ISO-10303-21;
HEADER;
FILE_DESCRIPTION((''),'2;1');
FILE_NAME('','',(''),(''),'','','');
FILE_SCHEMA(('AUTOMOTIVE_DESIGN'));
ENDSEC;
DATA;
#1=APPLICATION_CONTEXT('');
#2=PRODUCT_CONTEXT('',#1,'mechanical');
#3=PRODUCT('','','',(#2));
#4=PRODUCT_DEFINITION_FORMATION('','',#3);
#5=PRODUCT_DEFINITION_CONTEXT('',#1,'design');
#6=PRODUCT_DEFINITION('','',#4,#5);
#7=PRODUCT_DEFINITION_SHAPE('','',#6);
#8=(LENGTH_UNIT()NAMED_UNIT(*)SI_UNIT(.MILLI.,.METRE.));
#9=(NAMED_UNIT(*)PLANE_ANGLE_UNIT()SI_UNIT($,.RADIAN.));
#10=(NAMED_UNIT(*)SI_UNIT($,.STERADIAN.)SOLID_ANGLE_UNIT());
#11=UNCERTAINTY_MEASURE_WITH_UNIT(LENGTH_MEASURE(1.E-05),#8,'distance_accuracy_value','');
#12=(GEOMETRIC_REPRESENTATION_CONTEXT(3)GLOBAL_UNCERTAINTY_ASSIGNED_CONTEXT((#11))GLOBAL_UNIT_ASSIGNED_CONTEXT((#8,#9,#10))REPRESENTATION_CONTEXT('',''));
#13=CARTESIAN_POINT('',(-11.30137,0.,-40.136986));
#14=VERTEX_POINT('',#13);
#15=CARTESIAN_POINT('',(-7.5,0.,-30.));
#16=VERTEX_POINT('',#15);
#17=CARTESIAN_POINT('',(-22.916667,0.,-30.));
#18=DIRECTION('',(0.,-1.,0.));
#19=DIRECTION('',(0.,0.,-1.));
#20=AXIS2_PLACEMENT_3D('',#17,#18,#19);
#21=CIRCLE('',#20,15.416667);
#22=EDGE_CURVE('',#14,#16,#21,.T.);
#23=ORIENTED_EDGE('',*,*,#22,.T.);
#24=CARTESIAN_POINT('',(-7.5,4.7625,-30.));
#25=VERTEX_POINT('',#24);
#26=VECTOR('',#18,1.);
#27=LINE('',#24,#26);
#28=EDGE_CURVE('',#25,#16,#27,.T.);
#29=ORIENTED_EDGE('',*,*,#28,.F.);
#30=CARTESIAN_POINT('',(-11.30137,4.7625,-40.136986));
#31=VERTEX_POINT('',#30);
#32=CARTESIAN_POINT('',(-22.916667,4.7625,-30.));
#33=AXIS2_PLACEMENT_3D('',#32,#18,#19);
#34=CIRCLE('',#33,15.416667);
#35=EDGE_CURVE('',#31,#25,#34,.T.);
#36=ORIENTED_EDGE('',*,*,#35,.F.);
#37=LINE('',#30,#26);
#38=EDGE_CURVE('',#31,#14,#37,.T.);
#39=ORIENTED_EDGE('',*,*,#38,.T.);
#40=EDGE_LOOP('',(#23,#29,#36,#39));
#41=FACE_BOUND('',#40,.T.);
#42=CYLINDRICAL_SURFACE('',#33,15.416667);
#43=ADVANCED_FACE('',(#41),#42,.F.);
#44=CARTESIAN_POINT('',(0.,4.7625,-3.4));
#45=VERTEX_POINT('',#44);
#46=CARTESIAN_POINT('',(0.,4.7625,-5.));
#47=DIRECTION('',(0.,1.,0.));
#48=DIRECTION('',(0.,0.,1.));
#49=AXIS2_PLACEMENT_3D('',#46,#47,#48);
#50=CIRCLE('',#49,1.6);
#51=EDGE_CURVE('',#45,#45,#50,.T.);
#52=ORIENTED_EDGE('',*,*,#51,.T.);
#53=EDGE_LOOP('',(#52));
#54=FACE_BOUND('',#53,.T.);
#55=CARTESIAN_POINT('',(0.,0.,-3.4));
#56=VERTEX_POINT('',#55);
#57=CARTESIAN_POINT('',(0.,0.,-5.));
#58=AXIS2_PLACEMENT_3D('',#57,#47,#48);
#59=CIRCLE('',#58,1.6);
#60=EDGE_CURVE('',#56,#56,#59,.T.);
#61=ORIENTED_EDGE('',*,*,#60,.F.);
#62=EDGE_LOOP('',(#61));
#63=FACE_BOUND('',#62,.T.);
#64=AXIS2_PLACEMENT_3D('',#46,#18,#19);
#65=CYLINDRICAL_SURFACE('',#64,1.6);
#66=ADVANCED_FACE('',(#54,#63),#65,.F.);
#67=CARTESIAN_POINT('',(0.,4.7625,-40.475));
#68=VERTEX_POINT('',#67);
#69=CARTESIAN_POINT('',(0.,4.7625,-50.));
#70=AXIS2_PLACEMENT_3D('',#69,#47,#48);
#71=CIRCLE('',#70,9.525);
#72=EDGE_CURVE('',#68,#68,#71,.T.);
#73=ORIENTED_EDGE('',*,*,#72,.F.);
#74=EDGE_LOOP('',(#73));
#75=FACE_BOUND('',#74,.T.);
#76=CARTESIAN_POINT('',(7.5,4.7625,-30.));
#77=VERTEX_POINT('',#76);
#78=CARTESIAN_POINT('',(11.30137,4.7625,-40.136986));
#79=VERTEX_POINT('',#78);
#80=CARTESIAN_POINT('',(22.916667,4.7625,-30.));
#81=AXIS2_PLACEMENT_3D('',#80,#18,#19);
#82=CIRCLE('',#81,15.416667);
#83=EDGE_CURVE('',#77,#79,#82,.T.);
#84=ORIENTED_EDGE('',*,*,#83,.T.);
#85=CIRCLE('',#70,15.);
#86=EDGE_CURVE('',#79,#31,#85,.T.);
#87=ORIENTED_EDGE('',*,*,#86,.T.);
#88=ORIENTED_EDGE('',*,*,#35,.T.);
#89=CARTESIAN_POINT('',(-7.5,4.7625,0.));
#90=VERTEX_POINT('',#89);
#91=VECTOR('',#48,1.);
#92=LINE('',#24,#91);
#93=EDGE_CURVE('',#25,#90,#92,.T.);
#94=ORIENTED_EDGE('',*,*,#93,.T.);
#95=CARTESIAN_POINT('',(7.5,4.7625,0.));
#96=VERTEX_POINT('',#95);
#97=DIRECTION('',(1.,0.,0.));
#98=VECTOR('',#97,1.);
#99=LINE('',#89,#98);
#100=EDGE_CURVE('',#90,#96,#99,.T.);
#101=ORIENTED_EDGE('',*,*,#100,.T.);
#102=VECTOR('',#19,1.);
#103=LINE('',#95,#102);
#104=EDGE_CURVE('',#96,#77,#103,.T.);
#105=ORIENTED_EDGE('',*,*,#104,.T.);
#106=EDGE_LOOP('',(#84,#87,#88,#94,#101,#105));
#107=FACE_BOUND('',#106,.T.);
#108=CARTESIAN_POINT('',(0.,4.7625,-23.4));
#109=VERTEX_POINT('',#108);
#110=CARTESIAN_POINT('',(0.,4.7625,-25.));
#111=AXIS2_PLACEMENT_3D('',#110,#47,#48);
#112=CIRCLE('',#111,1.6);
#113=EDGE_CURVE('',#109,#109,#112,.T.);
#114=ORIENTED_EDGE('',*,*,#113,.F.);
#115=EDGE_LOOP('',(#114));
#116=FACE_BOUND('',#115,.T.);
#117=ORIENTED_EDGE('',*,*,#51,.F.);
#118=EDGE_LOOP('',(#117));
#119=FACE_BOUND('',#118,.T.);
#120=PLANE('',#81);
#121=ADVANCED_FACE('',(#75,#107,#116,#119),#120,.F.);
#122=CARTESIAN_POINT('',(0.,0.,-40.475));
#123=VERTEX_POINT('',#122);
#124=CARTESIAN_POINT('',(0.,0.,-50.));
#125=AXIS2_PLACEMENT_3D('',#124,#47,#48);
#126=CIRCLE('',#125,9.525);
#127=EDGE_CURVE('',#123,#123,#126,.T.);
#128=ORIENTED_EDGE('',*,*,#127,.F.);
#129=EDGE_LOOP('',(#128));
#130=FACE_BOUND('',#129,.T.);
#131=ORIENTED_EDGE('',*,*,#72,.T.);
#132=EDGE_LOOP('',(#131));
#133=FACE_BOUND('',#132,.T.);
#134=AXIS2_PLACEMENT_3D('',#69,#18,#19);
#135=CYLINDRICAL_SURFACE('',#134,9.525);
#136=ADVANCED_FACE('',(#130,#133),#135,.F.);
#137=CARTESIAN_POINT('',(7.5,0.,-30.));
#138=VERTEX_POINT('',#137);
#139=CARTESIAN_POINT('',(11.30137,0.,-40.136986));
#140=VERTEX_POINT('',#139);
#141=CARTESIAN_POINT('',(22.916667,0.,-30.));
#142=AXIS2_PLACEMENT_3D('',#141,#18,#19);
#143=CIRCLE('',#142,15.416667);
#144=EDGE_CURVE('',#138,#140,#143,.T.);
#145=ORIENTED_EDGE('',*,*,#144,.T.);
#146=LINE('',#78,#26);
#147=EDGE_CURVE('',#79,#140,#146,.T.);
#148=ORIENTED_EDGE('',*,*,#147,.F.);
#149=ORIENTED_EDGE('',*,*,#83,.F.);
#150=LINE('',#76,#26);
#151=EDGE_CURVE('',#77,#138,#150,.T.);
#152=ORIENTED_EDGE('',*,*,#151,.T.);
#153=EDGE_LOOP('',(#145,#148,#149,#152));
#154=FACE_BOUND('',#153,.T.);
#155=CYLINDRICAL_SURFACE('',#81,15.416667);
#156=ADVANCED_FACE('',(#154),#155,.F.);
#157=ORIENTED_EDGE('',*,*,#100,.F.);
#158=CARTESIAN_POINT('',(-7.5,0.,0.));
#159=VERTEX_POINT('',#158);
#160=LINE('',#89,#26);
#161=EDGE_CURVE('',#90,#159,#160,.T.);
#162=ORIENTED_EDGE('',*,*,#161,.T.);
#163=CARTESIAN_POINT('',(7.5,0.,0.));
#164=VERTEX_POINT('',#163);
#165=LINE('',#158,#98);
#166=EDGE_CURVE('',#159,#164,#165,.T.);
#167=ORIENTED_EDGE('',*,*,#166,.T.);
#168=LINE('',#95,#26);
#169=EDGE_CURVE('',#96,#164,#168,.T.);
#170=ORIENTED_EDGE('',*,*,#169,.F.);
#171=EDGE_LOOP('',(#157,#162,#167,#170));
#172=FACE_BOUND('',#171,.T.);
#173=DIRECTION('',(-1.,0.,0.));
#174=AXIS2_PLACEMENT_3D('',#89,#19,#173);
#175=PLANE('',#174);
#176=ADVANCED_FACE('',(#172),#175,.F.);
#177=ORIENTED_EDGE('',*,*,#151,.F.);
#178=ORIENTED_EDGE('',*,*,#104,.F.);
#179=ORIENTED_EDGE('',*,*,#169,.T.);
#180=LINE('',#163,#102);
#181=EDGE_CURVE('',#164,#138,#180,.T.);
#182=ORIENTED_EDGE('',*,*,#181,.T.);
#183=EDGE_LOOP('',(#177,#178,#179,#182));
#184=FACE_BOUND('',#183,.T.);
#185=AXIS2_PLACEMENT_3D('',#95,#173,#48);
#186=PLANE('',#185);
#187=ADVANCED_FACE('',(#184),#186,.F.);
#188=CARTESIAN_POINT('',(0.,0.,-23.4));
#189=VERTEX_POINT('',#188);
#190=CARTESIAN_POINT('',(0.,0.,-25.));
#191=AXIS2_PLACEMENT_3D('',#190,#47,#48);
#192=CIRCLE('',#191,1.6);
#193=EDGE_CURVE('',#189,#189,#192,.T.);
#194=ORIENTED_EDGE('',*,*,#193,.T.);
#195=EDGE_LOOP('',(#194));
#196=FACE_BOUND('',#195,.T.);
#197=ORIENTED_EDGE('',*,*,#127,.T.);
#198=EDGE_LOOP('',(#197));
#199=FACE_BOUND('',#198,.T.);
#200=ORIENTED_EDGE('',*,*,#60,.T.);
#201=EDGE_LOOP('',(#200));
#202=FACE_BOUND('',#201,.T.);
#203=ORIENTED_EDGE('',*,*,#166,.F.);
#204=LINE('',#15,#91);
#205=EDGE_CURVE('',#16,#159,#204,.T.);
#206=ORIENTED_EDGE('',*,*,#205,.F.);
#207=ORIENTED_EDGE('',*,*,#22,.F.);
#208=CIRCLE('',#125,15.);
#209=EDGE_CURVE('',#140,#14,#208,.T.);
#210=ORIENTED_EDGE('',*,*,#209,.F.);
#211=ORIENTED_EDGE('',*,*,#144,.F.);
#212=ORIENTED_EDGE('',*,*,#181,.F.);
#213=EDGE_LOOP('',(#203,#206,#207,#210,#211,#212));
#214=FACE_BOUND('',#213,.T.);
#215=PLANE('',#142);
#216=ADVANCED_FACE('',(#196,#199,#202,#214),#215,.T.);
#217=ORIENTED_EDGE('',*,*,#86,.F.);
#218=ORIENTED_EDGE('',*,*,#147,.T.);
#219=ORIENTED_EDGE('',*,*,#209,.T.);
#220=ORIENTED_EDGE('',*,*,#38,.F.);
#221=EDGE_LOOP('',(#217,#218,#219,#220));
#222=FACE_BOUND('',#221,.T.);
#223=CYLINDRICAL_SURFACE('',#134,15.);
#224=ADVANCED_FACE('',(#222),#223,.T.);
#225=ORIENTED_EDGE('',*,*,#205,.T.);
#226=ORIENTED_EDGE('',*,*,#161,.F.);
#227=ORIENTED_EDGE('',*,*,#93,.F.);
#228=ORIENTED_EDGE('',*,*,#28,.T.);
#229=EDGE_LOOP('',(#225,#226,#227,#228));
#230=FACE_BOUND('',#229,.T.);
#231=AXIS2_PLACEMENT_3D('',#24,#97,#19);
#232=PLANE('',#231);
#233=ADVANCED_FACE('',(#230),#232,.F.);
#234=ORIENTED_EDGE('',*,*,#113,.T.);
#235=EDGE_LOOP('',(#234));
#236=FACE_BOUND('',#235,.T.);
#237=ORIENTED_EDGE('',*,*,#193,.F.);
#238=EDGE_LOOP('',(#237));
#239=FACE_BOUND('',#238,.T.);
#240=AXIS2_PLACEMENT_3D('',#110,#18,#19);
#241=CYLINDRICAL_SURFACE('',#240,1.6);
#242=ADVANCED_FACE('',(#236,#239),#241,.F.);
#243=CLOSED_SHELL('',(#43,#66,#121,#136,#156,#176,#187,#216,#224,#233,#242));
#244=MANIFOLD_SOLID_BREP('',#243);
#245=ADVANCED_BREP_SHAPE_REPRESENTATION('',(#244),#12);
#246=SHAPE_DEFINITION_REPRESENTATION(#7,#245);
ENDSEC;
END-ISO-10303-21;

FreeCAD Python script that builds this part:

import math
import FreeCAD as App
import Part
import Sketcher

doc = App.newDocument("Part")
params = doc.addObject("Spreadsheet::Sheet", "Params")
for row, (alias, value) in enumerate([
    ("sketch1_radius", "15 mm"),
    ("sketch1_diameter", "3.2 mm"),
    ("sketch1_diameter2", "19.05 mm"),
    ("sketch1_width", "15 mm"),
    ("sketch1_height", "30 mm"),
    ("pad1_length", "4.7625 mm"),
], start=1):
    params.set(f"A{row}", alias)
    params.set(f"B{row}", "=" + value)
    params.setAlias(f"B{row}", alias)

body = doc.addObject("PartDesign::Body", "Body")

# Sketch on XZ plane
sketch1 = doc.addObject("Sketcher::SketchObject", "Sketch")
body.addObject(sketch1)
sketch1.AttachmentSupport = (doc.XZ_Plane, [""])
sketch1.MapMode = "FlatFace"
sketch1.addGeometry(Part.LineSegment(App.Vector(-7.5, 0, 0), App.Vector(7.5, 0, 0)), False)
sketch1.addGeometry(Part.LineSegment(App.Vector(7.5, 0, 0), App.Vector(7.5, -30, 0)), False)
sketch1.addGeometry(Part.ArcOfCircle(Part.Circle(App.Vector(22.916667, -30, 0), App.Vector(0, 0, 1), 15.416667), math.radians(180), math.radians(221.11209)), False)
sketch1.addGeometry(Part.ArcOfCircle(Part.Circle(App.Vector(0, -50, 0), App.Vector(0, 0, 1), 15), math.radians(138.88791), math.radians(401.11209)), False)
sketch1.addGeometry(Part.ArcOfCircle(Part.Circle(App.Vector(-22.916667, -30, 0), App.Vector(0, 0, 1), 15.416667), math.radians(-41.11209), math.radians(0)), False)
sketch1.addGeometry(Part.LineSegment(App.Vector(-7.5, -30, 0), App.Vector(-7.5, 0, 0)), False)
sketch1.addGeometry(Part.Circle(App.Vector(0, -5, 0), App.Vector(0, 0, 1), 1.6), False)
sketch1.addGeometry(Part.Circle(App.Vector(0, -25, 0), App.Vector(0, 0, 1), 1.6), False)
sketch1.addGeometry(Part.Circle(App.Vector(0, -50, 0), App.Vector(0, 0, 1), 9.525), False)
sketch1.addConstraint(Sketcher.Constraint("Coincident", 0, 2, 1, 1))
sketch1.addConstraint(Sketcher.Constraint("Tangent", 1, 2, 2, 1))
sketch1.addConstraint(Sketcher.Constraint("Tangent", 2, 2, 3, 2))
sketch1.addConstraint(Sketcher.Constraint("Tangent", 3, 1, 4, 1))
sketch1.addConstraint(Sketcher.Constraint("Tangent", 4, 2, 5, 1))
sketch1.addConstraint(Sketcher.Constraint("Coincident", 5, 2, 0, 1))
sketch1.addConstraint(Sketcher.Constraint("Horizontal", 0))
sketch1.addConstraint(Sketcher.Constraint("Vertical", 1))
sketch1.addConstraint(Sketcher.Constraint("Vertical", 5))
sketch1.addConstraint(Sketcher.Constraint("Coincident", 8, 3, 3, 3))
sketch1.addConstraint(Sketcher.Constraint("Equal", 2, 4))
sketch1.addConstraint(Sketcher.Constraint("Equal", 6, 7))
sketch1.addConstraint(Sketcher.Constraint("Symmetric", 0, 2, 5, 2, -1, 1))
sketch1.addConstraint(Sketcher.Constraint("PointOnObject", 3, 3, -2))
sketch1.addConstraint(Sketcher.Constraint("PointOnObject", 6, 3, -2))
sketch1.addConstraint(Sketcher.Constraint("PointOnObject", 7, 3, -2))
sketch1.addConstraint(Sketcher.Constraint("Radius", 3, 15.0))
sketch1.addConstraint(Sketcher.Constraint("Diameter", 6, 3.2))
sketch1.addConstraint(Sketcher.Constraint("Diameter", 8, 19.05))
sketch1.addConstraint(Sketcher.Constraint("DistanceX", 0, 1, 0, 2, 15.0))
sketch1.addConstraint(Sketcher.Constraint("DistanceY", 1, 2, 1, 1, 30.0))
sketch1.addConstraint(Sketcher.Constraint("DistanceY", 3, 3, -1, 1, 50.0))
sketch1.addConstraint(Sketcher.Constraint("DistanceY", 6, 3, -1, 1, 5.0))
sketch1.addConstraint(Sketcher.Constraint("DistanceY", 7, 3, -1, 1, 25.0))
sketch1.setExpression("Constraints[16]", "Params.sketch1_radius")
sketch1.setExpression("Constraints[17]", "Params.sketch1_diameter")
sketch1.setExpression("Constraints[18]", "Params.sketch1_diameter2")
sketch1.setExpression("Constraints[19]", "Params.sketch1_width")
sketch1.setExpression("Constraints[20]", "Params.sketch1_height")
pad1 = doc.addObject("PartDesign::Pad", "Pad")
body.addObject(pad1)
pad1.Profile = sketch1
pad1.setExpression("Length", "Params.pad1_length")
pad1.Reversed = True

doc.recompute()
